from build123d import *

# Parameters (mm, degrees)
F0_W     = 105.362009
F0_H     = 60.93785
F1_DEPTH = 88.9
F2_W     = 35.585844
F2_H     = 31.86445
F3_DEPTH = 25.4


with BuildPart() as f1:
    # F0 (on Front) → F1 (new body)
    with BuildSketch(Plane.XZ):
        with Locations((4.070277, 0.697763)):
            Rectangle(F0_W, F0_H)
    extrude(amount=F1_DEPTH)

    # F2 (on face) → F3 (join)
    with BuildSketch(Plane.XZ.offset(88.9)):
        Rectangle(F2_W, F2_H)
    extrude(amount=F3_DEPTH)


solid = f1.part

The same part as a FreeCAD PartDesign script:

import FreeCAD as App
import Part
import Sketcher
Q = App.Units.Quantity


def add_polygon(sketch, points):
    """Adds a closed chain of lines whose ends are joined by coincident constraints."""
    first, n = sketch.GeometryCount, len(points)
    for a, b in zip(points, points[1:] + points[:1]):
        sketch.addGeometry(Part.LineSegment(App.Vector(*a, 0), App.Vector(*b, 0)), False)
    for i in range(n):
        sketch.addConstraint(Sketcher.Constraint("Coincident", first + i, 2, first + (i + 1) % n, 1))

doc = App.newDocument("Part")
body = doc.addObject("PartDesign::Body", "Body")

# Sketch on XZ plane
sketch1 = doc.addObject("Sketcher::SketchObject", "Sketch")
body.addObject(sketch1)
sketch1.AttachmentSupport = (doc.XZ_Plane, [""])
sketch1.MapMode = "FlatFace"
add_polygon(sketch1, [(-49, 31), (-49, -30), (57, -30), (57, 31)])  # lines 0-3
sketch1.addConstraint(Sketcher.Constraint("Vertical", 0))
sketch1.addConstraint(Sketcher.Constraint("Horizontal", 1))
sketch1.addConstraint(Sketcher.Constraint("Vertical", 2))
sketch1.addConstraint(Sketcher.Constraint("Horizontal", 3))
sketch1.addConstraint(Sketcher.Constraint("DistanceX", 1, 1, 1, 2, 105.362009))
sketch1.addConstraint(Sketcher.Constraint("DistanceY", 0, 2, 0, 1, 60.93785))
sketch1.addConstraint(Sketcher.Constraint("DistanceX", -1, 1, 1, 2, 56.751281))
sketch1.addConstraint(Sketcher.Constraint("DistanceY", -1, 1, 2, 2, 31.166688))
pad1 = doc.addObject("PartDesign::Pad", "Pad")
body.addObject(pad1)
pad1.Profile = sketch1
pad1.Length = Q("3.5 in")

# Sketch on XZ plane
sketch2 = doc.addObject("Sketcher::SketchObject", "Sketch001")
body.addObject(sketch2)
sketch2.AttachmentSupport = (doc.XZ_Plane, [""])
sketch2.MapMode = "FlatFace"
sketch2.AttachmentOffset = App.Placement(App.Vector(0, 0, 3.5 * 25.4), App.Rotation())
add_polygon(sketch2, [(-18, 16), (-18, -16), (18, -16), (18, 16)])  # lines 0-3
sketch2.addConstraint(Sketcher.Constraint("Vertical", 0))
sketch2.addConstraint(Sketcher.Constraint("Horizontal", 1))
sketch2.addConstraint(Sketcher.Constraint("Vertical", 2))
sketch2.addConstraint(Sketcher.Constraint("Horizontal", 3))
sketch2.addConstraint(Sketcher.Constraint("Symmetric", 0, 2, 2, 2, -1, 1))
sketch2.addConstraint(Sketcher.Constraint("DistanceY", 0, 2, 0, 1, 31.86445))
sketch2.addConstraint(Sketcher.Constraint("DistanceX", 1, 1, 1, 2, 35.585844))
pad2 = doc.addObject("PartDesign::Pad", "Pad001")
body.addObject(pad2)
pad2.Profile = sketch2
pad2.Length = Q("1 in")

doc.recompute()
